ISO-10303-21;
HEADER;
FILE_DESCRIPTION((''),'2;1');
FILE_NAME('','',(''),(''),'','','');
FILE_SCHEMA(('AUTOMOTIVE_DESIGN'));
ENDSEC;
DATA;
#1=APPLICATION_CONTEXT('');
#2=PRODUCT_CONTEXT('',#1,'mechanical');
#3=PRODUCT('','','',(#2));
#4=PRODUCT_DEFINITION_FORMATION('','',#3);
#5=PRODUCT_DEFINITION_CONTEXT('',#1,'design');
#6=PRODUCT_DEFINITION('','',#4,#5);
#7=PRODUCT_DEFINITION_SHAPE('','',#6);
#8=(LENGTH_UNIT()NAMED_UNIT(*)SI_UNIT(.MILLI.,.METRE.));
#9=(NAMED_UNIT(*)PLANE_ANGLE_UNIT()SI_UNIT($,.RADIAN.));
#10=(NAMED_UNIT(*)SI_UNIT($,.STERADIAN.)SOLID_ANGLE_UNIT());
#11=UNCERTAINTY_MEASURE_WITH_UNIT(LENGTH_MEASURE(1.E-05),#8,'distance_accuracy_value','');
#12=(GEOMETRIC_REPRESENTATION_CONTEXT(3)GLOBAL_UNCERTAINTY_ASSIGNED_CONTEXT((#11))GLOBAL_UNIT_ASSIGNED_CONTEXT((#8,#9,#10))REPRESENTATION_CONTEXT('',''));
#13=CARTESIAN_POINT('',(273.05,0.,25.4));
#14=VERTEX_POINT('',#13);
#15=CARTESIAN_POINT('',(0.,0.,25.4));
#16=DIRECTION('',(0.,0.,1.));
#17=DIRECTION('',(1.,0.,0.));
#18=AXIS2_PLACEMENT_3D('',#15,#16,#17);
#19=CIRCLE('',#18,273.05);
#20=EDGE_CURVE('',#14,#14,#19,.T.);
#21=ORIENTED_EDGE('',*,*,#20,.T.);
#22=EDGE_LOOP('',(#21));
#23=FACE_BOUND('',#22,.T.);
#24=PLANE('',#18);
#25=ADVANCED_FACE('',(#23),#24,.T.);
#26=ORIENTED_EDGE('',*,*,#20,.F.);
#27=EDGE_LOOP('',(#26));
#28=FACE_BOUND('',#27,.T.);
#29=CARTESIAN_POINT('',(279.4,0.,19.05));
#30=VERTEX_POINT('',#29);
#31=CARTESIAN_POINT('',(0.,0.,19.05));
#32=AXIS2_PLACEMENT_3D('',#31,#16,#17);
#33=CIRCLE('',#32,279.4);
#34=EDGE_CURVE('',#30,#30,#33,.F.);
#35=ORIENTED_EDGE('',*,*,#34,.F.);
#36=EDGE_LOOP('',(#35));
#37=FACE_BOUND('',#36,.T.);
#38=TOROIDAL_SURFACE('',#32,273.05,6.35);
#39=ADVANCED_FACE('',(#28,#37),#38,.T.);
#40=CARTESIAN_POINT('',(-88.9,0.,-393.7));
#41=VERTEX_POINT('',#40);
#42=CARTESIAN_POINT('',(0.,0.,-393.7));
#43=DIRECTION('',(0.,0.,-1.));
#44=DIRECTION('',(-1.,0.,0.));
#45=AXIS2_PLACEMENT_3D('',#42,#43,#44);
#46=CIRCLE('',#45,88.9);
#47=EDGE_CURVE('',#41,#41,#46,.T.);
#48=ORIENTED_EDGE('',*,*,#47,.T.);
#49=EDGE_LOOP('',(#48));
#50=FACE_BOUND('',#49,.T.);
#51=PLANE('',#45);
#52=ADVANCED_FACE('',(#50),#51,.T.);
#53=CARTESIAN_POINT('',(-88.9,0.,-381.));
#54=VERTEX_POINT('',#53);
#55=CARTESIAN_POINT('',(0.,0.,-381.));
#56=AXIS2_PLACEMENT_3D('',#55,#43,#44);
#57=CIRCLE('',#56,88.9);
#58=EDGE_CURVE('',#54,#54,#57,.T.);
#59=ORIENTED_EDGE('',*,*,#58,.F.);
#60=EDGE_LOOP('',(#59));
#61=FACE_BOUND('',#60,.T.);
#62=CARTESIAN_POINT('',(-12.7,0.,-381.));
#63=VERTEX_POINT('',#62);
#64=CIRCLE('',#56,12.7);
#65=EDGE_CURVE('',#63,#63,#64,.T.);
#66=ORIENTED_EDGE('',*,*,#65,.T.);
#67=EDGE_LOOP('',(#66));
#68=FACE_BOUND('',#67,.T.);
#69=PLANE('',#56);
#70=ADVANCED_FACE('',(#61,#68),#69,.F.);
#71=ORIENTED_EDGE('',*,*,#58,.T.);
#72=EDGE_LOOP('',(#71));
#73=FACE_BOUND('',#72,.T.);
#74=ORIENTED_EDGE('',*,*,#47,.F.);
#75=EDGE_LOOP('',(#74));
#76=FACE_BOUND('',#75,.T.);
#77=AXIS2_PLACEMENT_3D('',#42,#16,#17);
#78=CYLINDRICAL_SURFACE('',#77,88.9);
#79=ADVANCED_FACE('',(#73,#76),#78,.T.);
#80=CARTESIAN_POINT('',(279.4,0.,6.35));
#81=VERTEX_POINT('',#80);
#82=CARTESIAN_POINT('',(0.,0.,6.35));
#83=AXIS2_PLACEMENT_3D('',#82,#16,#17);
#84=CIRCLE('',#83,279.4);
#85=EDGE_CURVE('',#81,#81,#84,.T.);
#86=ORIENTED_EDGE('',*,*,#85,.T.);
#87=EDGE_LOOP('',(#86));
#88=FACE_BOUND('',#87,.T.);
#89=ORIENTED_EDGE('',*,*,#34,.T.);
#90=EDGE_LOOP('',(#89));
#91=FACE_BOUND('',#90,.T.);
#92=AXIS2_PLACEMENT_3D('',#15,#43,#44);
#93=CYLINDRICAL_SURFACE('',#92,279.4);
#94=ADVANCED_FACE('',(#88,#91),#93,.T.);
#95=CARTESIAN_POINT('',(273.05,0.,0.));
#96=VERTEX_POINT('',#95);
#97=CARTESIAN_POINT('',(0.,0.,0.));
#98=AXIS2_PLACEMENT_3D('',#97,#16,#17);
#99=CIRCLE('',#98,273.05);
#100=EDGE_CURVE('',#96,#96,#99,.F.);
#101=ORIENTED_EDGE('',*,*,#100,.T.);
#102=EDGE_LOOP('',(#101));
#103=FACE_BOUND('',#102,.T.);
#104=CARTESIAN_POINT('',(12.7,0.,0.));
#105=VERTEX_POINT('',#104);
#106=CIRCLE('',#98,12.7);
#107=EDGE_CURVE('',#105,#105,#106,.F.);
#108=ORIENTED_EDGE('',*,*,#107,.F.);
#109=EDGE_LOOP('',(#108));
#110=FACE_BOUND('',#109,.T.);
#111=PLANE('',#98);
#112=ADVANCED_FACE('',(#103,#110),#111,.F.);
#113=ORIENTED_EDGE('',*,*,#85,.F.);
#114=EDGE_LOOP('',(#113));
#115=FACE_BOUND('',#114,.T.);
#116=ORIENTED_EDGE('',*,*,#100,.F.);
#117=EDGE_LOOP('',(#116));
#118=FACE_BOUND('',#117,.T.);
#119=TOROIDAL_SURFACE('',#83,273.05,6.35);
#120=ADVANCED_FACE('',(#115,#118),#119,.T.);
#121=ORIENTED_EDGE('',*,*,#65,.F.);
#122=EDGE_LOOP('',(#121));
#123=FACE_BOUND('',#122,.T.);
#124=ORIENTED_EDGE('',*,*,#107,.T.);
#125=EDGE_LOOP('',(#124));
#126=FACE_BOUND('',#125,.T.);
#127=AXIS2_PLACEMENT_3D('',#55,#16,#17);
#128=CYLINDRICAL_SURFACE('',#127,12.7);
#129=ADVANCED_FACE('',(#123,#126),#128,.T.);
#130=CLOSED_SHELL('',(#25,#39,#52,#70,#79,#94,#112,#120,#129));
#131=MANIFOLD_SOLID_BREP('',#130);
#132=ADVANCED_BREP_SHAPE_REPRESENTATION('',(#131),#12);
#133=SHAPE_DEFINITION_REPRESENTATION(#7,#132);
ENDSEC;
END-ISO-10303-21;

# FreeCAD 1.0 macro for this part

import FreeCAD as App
import Part
import Sketcher
Q = App.Units.Quantity


def edges_at(feature, points):
    """Names of the edges that pass closest to the given points."""
    edges = feature.Shape.Edges
    near = lambda p: min(range(len(edges)), key=lambda i: edges[i].distToShape(Part.Vertex(*p))[0])
    return sorted({f"Edge{near(p) + 1}" for p in points})

doc = App.newDocument("Part")
params = doc.addObject("Spreadsheet::Sheet", "Params")
for row, (alias, value) in enumerate([
    ("sketch1_diameter", "22 in"),
    ("pad1_length", "1 in"),
    ("sketch2_diameter", "1 in"),
    ("pad2_length", "15 in"),
    ("fillet_radius", "0.25 in"),
    ("sketch3_diameter", "7 in"),
    ("pad3_length", "0.5 in"),
], start=1):
    params.set(f"A{row}", alias)
    params.set(f"B{row}", "=" + value)
    params.setAlias(f"B{row}", alias)

body = doc.addObject("PartDesign::Body", "Body")

# Sketch on XY plane
sketch1 = body.newObject("Sketcher::SketchObject", "Sketch")
sketch1.AttachmentSupport = (doc.getObject("XY_Plane"), [""])
sketch1.MapMode = "FlatFace"
sketch1.addGeometry(Part.Circle(App.Vector(0, 0, 0), App.Vector(0, 0, 1), 279), False)
sketch1.addConstraint([
    Sketcher.Constraint("Coincident", 0, 3, -1, 1),
    Sketcher.Constraint("Diameter", 0, Q("22 in")),
])
sketch1.setExpression("Constraints[1]", "Params.sketch1_diameter")
pad1 = body.newObject("PartDesign::Pad", "Pad")
pad1.Profile = sketch1
pad1.setExpression("Length", "Params.pad1_length")

# Sketch on XY plane
sketch2 = body.newObject("Sketcher::SketchObject", "Sketch001")
sketch2.AttachmentSupport = (doc.getObject("XY_Plane"), [""])
sketch2.MapMode = "FlatFace"
sketch2.addGeometry(Part.Circle(App.Vector(0, 0, 0), App.Vector(0, 0, 1), 13), False)
sketch2.addConstraint([
    Sketcher.Constraint("Coincident", 0, 3, -1, 1),
    Sketcher.Constraint("Diameter", 0, Q("1 in")),
])
sketch2.setExpression("Constraints[1]", "Params.sketch2_diameter")
pad2 = body.newObject("PartDesign::Pad", "Pad001")
pad2.Profile = sketch2
pad2.setExpression("Length", "Params.pad2_length")
pad2.Reversed = True
doc.recompute()

fillet = body.newObject("PartDesign::Fillet", "Fillet")
fillet.Base = (pad2, edges_at(pad2, [(-279.4, 0, 0), (-279.4, 0, 25.4)]))
fillet.setExpression("Radius", "Params.fillet_radius")

# Sketch on XY plane
sketch3 = body.newObject("Sketcher::SketchObject", "Sketch002")
sketch3.AttachmentSupport = (doc.getObject("XY_Plane"), [""])
sketch3.MapMode = "FlatFace"
sketch3.AttachmentOffset = App.Placement(App.Vector(0, 0, -15 * 25.4), App.Rotation())
sketch3.addGeometry(Part.Circle(App.Vector(0, 0, 0), App.Vector(0, 0, 1), 89), False)
sketch3.addConstraint([
    Sketcher.Constraint("Coincident", 0, 3, -1, 1),
    Sketcher.Constraint("Diameter", 0, Q("7 in")),
])
sketch3.setExpression("Constraints[1]", "Params.sketch3_diameter")
pad3 = body.newObject("PartDesign::Pad", "Pad002")
pad3.Profile = sketch3
pad3.setExpression("Length", "Params.pad3_length")
pad3.Reversed = True

doc.recompute()
